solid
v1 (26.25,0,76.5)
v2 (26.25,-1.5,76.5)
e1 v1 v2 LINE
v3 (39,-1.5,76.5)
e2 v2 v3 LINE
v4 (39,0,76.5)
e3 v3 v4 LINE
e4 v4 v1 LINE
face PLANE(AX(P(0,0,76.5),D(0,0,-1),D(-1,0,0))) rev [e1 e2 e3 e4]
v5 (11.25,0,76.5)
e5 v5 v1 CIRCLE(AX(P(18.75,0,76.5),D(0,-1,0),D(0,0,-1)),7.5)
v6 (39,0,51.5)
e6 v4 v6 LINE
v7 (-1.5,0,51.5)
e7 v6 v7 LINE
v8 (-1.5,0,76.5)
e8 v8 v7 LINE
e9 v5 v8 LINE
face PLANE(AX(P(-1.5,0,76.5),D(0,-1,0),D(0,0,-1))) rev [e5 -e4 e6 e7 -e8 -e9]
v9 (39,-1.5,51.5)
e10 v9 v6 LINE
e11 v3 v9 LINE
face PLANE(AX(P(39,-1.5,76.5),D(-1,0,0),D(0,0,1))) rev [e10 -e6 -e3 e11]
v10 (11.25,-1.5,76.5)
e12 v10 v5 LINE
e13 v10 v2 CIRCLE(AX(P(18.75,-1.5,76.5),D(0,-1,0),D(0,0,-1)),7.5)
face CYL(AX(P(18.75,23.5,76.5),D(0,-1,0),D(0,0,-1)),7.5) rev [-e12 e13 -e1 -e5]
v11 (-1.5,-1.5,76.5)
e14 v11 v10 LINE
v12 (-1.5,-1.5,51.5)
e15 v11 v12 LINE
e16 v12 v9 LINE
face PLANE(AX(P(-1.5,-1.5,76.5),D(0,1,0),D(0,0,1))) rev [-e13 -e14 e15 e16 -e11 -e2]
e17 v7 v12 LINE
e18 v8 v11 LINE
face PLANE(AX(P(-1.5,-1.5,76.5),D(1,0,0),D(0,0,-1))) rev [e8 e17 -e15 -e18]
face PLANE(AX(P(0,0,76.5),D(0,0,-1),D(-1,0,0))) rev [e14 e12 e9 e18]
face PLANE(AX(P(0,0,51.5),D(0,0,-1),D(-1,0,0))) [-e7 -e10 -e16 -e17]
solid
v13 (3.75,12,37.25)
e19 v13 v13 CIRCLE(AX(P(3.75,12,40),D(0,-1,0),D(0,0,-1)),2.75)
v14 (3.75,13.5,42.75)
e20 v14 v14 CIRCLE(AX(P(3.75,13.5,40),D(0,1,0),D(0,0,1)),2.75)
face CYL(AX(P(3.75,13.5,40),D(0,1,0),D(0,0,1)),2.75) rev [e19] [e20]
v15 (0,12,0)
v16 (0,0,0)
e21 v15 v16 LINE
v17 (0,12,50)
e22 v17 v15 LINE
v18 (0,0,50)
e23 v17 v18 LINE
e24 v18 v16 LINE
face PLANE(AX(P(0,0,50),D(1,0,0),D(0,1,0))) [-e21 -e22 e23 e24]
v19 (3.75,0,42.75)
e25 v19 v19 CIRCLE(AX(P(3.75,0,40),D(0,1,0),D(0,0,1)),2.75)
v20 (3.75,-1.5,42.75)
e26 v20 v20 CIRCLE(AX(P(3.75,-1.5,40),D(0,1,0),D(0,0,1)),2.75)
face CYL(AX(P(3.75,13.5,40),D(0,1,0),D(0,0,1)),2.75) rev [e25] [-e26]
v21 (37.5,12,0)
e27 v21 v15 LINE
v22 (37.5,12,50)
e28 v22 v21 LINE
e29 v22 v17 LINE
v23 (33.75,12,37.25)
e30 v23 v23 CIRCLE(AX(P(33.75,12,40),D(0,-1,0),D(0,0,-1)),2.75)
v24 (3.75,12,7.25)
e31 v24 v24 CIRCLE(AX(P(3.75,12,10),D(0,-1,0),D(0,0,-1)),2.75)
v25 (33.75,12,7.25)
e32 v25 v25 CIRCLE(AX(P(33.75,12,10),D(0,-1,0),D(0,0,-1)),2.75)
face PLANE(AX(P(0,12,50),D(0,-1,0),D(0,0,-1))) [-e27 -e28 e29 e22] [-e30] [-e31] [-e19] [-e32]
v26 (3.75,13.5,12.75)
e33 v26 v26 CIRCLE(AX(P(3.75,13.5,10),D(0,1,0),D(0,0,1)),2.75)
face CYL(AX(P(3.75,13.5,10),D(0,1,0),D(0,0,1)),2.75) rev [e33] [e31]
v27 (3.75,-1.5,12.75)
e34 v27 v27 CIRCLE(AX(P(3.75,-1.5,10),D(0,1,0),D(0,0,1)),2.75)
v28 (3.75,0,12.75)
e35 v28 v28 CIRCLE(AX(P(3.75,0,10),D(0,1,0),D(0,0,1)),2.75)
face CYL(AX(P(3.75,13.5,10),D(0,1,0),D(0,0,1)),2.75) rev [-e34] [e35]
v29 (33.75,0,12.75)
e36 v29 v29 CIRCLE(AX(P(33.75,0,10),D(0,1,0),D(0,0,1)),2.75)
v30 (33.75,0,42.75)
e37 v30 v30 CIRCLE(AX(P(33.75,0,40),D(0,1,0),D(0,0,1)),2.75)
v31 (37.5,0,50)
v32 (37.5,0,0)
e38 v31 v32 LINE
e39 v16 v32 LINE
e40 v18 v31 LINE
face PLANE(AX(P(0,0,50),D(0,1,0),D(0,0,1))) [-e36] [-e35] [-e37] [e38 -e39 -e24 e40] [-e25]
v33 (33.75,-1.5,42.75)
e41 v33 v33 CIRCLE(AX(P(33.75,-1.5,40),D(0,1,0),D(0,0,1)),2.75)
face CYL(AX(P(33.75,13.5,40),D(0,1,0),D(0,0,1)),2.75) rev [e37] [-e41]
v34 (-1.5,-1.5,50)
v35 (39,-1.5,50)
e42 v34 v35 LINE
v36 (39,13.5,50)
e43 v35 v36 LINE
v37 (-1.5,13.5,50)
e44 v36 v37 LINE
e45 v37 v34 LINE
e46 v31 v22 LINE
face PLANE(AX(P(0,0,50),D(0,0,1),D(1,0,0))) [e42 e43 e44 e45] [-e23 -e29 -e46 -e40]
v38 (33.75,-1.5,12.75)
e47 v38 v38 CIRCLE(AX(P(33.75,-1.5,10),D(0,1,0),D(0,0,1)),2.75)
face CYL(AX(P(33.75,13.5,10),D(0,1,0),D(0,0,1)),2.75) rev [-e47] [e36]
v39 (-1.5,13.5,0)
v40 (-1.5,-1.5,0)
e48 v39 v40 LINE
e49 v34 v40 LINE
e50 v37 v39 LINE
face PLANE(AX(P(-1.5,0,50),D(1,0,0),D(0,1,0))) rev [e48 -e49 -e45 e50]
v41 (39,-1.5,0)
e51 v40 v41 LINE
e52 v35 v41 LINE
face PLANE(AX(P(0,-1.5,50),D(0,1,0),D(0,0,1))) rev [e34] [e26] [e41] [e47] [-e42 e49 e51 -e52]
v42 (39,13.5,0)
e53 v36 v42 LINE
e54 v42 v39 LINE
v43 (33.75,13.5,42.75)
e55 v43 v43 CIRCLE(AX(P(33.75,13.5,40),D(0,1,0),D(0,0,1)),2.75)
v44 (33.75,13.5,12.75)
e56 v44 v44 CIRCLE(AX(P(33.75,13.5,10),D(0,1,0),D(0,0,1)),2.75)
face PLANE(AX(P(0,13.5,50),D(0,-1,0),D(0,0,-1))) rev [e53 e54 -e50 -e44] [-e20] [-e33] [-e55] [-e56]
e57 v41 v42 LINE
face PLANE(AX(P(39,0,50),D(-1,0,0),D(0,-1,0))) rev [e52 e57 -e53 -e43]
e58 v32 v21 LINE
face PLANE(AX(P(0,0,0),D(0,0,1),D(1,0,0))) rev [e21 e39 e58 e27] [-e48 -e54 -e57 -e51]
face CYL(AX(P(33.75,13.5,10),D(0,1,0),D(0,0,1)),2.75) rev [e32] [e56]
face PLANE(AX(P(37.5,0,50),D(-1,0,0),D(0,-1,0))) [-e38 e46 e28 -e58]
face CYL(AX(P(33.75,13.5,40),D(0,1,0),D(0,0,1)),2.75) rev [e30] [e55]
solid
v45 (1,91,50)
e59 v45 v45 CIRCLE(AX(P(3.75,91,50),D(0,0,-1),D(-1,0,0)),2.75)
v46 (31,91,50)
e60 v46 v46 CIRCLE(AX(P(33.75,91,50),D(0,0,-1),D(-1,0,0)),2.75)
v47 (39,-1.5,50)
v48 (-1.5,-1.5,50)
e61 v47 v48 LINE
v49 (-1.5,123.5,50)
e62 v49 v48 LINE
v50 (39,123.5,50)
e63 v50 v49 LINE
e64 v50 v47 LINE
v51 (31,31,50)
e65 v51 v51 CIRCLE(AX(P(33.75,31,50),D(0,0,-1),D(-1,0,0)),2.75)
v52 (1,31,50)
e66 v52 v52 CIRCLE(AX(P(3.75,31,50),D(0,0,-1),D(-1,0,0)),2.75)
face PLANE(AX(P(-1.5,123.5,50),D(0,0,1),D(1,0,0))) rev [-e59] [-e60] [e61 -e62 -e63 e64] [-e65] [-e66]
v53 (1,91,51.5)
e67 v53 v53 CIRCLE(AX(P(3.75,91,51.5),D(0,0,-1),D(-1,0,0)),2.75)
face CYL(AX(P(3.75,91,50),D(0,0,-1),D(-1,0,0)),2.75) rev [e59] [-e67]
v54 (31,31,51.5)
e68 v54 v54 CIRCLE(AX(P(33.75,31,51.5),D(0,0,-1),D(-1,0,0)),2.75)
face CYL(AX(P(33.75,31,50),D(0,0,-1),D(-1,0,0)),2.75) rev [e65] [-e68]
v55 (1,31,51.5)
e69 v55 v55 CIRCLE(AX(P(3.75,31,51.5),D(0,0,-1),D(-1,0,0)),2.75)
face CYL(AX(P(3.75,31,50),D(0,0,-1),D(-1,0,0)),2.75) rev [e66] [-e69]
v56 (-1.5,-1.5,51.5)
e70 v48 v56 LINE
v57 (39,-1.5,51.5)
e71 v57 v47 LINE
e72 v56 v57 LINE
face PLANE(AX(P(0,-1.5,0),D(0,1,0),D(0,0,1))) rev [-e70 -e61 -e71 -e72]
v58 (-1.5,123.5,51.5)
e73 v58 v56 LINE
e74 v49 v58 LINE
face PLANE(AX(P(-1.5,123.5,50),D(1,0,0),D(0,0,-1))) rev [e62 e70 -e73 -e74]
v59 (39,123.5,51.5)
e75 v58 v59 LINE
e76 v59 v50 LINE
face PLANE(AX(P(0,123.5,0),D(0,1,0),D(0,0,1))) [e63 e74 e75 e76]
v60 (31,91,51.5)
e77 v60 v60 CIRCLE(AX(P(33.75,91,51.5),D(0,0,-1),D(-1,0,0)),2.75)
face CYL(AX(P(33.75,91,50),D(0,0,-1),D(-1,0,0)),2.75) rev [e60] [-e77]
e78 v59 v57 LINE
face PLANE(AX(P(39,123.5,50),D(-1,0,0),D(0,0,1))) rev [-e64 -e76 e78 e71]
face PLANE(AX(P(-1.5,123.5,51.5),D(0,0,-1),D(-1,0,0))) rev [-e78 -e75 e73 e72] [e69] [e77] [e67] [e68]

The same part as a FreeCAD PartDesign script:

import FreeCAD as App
import Part
import Sketcher

V = App.Vector
Q = App.Units.Quantity


def add_polygon(sketch, points):
    """Adds a closed chain of lines whose ends are joined by coincident constraints."""
    first, n = sketch.GeometryCount, len(points)
    for a, b in zip(points, points[1:] + points[:1]):
        sketch.addGeometry(Part.LineSegment(App.Vector(*a, 0), App.Vector(*b, 0)), False)
    for i in range(n):
        sketch.addConstraint(Sketcher.Constraint("Coincident", first + i, 2, first + (i + 1) % n, 1))

doc = App.newDocument("Part")
params = doc.addObject("Spreadsheet::Sheet", "Params")
for row, (alias, value) in enumerate([
    ("sketch1_height", "15 mm"),
    ("sketch1_height2", "12 mm"),
    ("sketch1_width", "40.5 mm"),
    ("sketch1_width2", "37.5 mm"),
    ("pad1_length", "50 mm"),
    ("sketch2_width", "15 mm"),
    ("sketch2_height", "2.75 mm"),
    ("groove_angle", "360 deg"),
    ("linearpattern_pitch", "42.426407 mm"),
    ("linearpattern2_pitch", "30 mm"),
    ("linearpattern3_pitch", "30 mm"),
    ("sketch3_width", "40.5 mm"),
    ("sketch3_height", "1.5 mm"),
    ("pad2_length", "125 mm"),
    ("sketch4_height", "26.5 mm"),
    ("sketch4_width", "2.75 mm"),
    ("groove2_angle", "360 deg"),
    ("linearpattern4_pitch", "67.082039 mm"),
    ("linearpattern5_pitch", "60 mm"),
    ("linearpattern6_pitch", "30 mm"),
    ("sketch5_width", "40.5 mm"),
    ("sketch5_height", "1.5 mm"),
    ("pad3_length", "25 mm"),
    ("sketch6_diameter", "15 mm"),
    ("pocket1_length", "25 mm"),
], start=1):
    params.set(f"A{row}", alias)
    params.set(f"B{row}", "=" + value)
    params.setAlias(f"B{row}", alias)

body = doc.addObject("PartDesign::Body", "Body")

sketch1 = doc.addObject("Sketcher::SketchObject", "Sketch")
body.addObject(sketch1)
sketch1.AttachmentSupport = (doc.XY_Plane, [""])
sketch1.MapMode = "FlatFace"
add_polygon(sketch1, [(-1.5, 13.5), (-1.5, -1.5), (39, -1.5), (39, 13.5)])
add_polygon(sketch1, [(37.5, 0), (0, 0), (0, 12), (37.5, 12)])
sketch1.addConstraint([
    Sketcher.Constraint("Vertical", 0),
    Sketcher.Constraint("Horizontal", 1),
    Sketcher.Constraint("Vertical", 2),
    Sketcher.Constraint("Horizontal", 3),
    Sketcher.Constraint("Horizontal", 4),
    Sketcher.Constraint("Vertical", 5),
    Sketcher.Constraint("Horizontal", 6),
    Sketcher.Constraint("Vertical", 7),
    Sketcher.Constraint("Coincident", 4, 2, -1, 1),
    Sketcher.Constraint("DistanceY", 0, 2, 0, 1, Q("15 mm")),
    Sketcher.Constraint("DistanceY", 5, 1, 5, 2, Q("12 mm")),
    Sketcher.Constraint("DistanceX", 1, 1, 1, 2, Q("40.5 mm")),
    Sketcher.Constraint("DistanceX", 4, 2, 4, 1, Q("37.5 mm")),
    Sketcher.Constraint("DistanceX", -1, 1, 1, 2, Q("39 mm")),
    Sketcher.Constraint("DistanceY", 0, 2, -1, 1, Q("1.5 mm")),
])
sketch1.setExpression("Constraints[17]", "Params.sketch1_height")
sketch1.setExpression("Constraints[18]", "Params.sketch1_height2")
sketch1.setExpression("Constraints[19]", "Params.sketch1_width")
sketch1.setExpression("Constraints[20]", "Params.sketch1_width2")
pad1 = doc.addObject("PartDesign::Pad", "Pad")
body.addObject(pad1)
pad1.Profile = sketch1
pad1.setExpression("Length", "Params.pad1_length")

sketch2 = doc.addObject("Sketcher::SketchObject", "Sketch001")
body.addObject(sketch2)
sketch2.AttachmentSupport = (doc.YZ_Plane, [""])
sketch2.MapMode = "FlatFace"
sketch2.AttachmentOffset = App.Placement(V(0, 0, 3.75), App.Rotation())
add_polygon(sketch2, [(-1.5, 10), (13.5, 10), (13.5, 12.75), (-1.5, 12.75)])
sketch2.addGeometry(Part.LineSegment(V(13.5, 10, 0), V(-1.5, 10, 0)), True)
sketch2.addConstraint([
    Sketcher.Constraint("Horizontal", 0),
    Sketcher.Constraint("Vertical", 1),
    Sketcher.Constraint("Horizontal", 2),
    Sketcher.Constraint("Vertical", 3),
    Sketcher.Constraint("Horizontal", 4),
    Sketcher.Constraint("Coincident", 4, 1, 0, 2),
    Sketcher.Constraint("Vertical", 2, 2, 4, 2),
    Sketcher.Constraint("DistanceX", 0, 1, 0, 2, Q("15 mm")),
    Sketcher.Constraint("DistanceY", -1, 1, 0, 2, Q("10 mm")),
    Sketcher.Constraint("DistanceY", 1, 1, 1, 2, Q("2.75 mm")),
    Sketcher.Constraint("DistanceX", -1, 1, 0, 2, Q("13.5 mm")),
])
sketch2.setExpression("Constraints[11]", "Params.sketch2_width")
sketch2.setExpression("Constraints[13]", "Params.sketch2_height")
groove = doc.addObject("PartDesign::Groove", "Groove")
body.addObject(groove)
groove.Profile = sketch2
groove.ReferenceAxis = (sketch2, ["Axis0"])
groove.setExpression("Angle", "Params.groove_angle")
doc.recompute()

datumline = doc.addObject("PartDesign::Line", "DatumLine")
body.addObject(datumline)
datumline.Placement = App.Placement(V(0, 0, 0), App.Rotation(V(0, 0, 1), V(0.707106781, 0, 0.707106781)))
linearpattern = doc.addObject("PartDesign::LinearPattern", "LinearPattern")
body.addObject(linearpattern)
linearpattern.Originals = [groove]
linearpattern.Direction = (datumline, [""])
linearpattern.Mode = "offset"
linearpattern.setExpression("Offset", "Params.linearpattern_pitch")
linearpattern.Occurrences = 2
body.Tip = linearpattern
doc.recompute()

linearpattern2 = doc.addObject("PartDesign::LinearPattern", "LinearPattern001")
body.addObject(linearpattern2)
linearpattern2.Originals = [groove]
linearpattern2.Direction = (doc.Z_Axis, [""])
linearpattern2.Mode = "offset"
linearpattern2.setExpression("Offset", "Params.linearpattern2_pitch")
linearpattern2.Occurrences = 2
body.Tip = linearpattern2
doc.recompute()

linearpattern3 = doc.addObject("PartDesign::LinearPattern", "LinearPattern002")
body.addObject(linearpattern3)
linearpattern3.Originals = [groove]
linearpattern3.Direction = (doc.X_Axis, [""])
linearpattern3.Mode = "offset"
linearpattern3.setExpression("Offset", "Params.linearpattern3_pitch")
linearpattern3.Occurrences = 2
body.Tip = linearpattern3
body2 = doc.addObject("PartDesign::Body", "Body001")

sketch3 = doc.addObject("Sketcher::SketchObject", "Sketch002")
body2.addObject(sketch3)
sketch3.AttachmentSupport = (doc.getObject("XZ_Plane001"), [""])
sketch3.MapMode = "FlatFace"
sketch3.AttachmentOffset = App.Placement(V(0, 0, 1.5), App.Rotation())
add_polygon(sketch3, [(-1.5, 50), (-1.5, 51.5), (39, 51.5), (39, 50)])
sketch3.addConstraint([
    Sketcher.Constraint("Vertical", 0),
    Sketcher.Constraint("Horizontal", 1),
    Sketcher.Constraint("Vertical", 2),
    Sketcher.Constraint("Horizontal", 3),
    Sketcher.Constraint("DistanceX", 1, 1, 1, 2, Q("40.5 mm")),
    Sketcher.Constraint("DistanceY", 0, 1, 0, 2, Q("1.5 mm")),
    Sketcher.Constraint("DistanceX", -1, 1, 1, 2, Q("39 mm")),
    Sketcher.Constraint("DistanceY", -1, 1, 2, 2, Q("50 mm")),
])
sketch3.setExpression("Constraints[8]", "Params.sketch3_width")
sketch3.setExpression("Constraints[9]", "Params.sketch3_height")
pad2 = doc.addObject("PartDesign::Pad", "Pad001")
body2.addObject(pad2)
pad2.Profile = sketch3
pad2.setExpression("Length", "Params.pad2_length")
pad2.Reversed = True

sketch4 = doc.addObject("Sketcher::SketchObject", "Sketch003")
body2.addObject(sketch4)
sketch4.AttachmentSupport = (doc.getObject("YZ_Plane001"), [""])
sketch4.MapMode = "FlatFace"
sketch4.AttachmentOffset = App.Placement(V(0, 0, 33.75), App.Rotation())
add_polygon(sketch4, [(91, 76.5), (91, 50), (93.75, 50), (93.75, 76.5)])
sketch4.addGeometry(Part.LineSegment(V(91, 50, 0), V(91, 76.5, 0)), True)
sketch4.addConstraint([
    Sketcher.Constraint("Vertical", 0),
    Sketcher.Constraint("Horizontal", 1),
    Sketcher.Constraint("Vertical", 2),
    Sketcher.Constraint("Horizontal", 3),
    Sketcher.Constraint("Vertical", 4),
    Sketcher.Constraint("Coincident", 4, 1, 0, 2),
    Sketcher.Constraint("Horizontal", 2, 2, 4, 2),
    Sketcher.Constraint("DistanceY", 0, 2, 0, 1, Q("26.5 mm")),
    Sketcher.Constraint("DistanceX", -1, 1, 0, 2, Q("91 mm")),
    Sketcher.Constraint("DistanceY", -1, 1, 0, 2, Q("50 mm")),
    Sketcher.Constraint("DistanceX", 1, 1, 1, 2, Q("2.75 mm")),
])
sketch4.setExpression("Constraints[11]", "Params.sketch4_height")
sketch4.setExpression("Constraints[14]", "Params.sketch4_width")
groove2 = doc.addObject("PartDesign::Groove", "Groove001")
body2.addObject(groove2)
groove2.Profile = sketch4
groove2.ReferenceAxis = (sketch4, ["Axis0"])
groove2.setExpression("Angle", "Params.groove2_angle")
doc.recompute()

datumline2 = doc.addObject("PartDesign::Line", "DatumLine001")
body2.addObject(datumline2)
datumline2.Placement = App.Placement(V(0, 0, 0), App.Rotation(V(0, 0, 1), V(-0.447213595, -0.894427191, 0)))
linearpattern4 = doc.addObject("PartDesign::LinearPattern", "LinearPattern003")
body2.addObject(linearpattern4)
linearpattern4.Originals = [groove2]
linearpattern4.Direction = (datumline2, [""])
linearpattern4.Mode = "offset"
linearpattern4.setExpression("Offset", "Params.linearpattern4_pitch")
linearpattern4.Occurrences = 2
body2.Tip = linearpattern4
doc.recompute()

linearpattern5 = doc.addObject("PartDesign::LinearPattern", "LinearPattern004")
body2.addObject(linearpattern5)
linearpattern5.Originals = [groove2]
linearpattern5.Direction = (doc.getObject("Y_Axis001"), [""])
linearpattern5.Mode = "offset"
linearpattern5.setExpression("Offset", "Params.linearpattern5_pitch")
linearpattern5.Occurrences = 2
linearpattern5.Reversed = True
body2.Tip = linearpattern5
doc.recompute()

linearpattern6 = doc.addObject("PartDesign::LinearPattern", "LinearPattern005")
body2.addObject(linearpattern6)
linearpattern6.Originals = [groove2]
linearpattern6.Direction = (doc.getObject("X_Axis001"), [""])
linearpattern6.Mode = "offset"
linearpattern6.setExpression("Offset", "Params.linearpattern6_pitch")
linearpattern6.Occurrences = 2
linearpattern6.Reversed = True
body2.Tip = linearpattern6
body3 = doc.addObject("PartDesign::Body", "Body002")

sketch5 = doc.addObject("Sketcher::SketchObject", "Sketch004")
body3.addObject(sketch5)
sketch5.AttachmentSupport = (doc.getObject("XY_Plane002"), [""])
sketch5.MapMode = "FlatFace"
sketch5.AttachmentOffset = App.Placement(V(0, 0, 51.5), App.Rotation())
add_polygon(sketch5, [(-1.5, 0), (-1.5, -1.5), (39, -1.5), (39, 0)])
sketch5.addConstraint([
    Sketcher.Constraint("Vertical", 0),
    Sketcher.Constraint("Horizontal", 1),
    Sketcher.Constraint("Vertical", 2),
    Sketcher.Constraint("Horizontal", 3),
    Sketcher.Constraint("PointOnObject", 2, 2, -1),
    Sketcher.Constraint("DistanceX", 1, 1, 1, 2, Q("40.5 mm")),
    Sketcher.Constraint("DistanceY", 0, 2, 0, 1, Q("1.5 mm")),
    Sketcher.Constraint("DistanceX", -1, 1, 1, 2, Q("39 mm")),
])
sketch5.setExpression("Constraints[9]", "Params.sketch5_width")
sketch5.setExpression("Constraints[10]", "Params.sketch5_height")
pad3 = doc.addObject("PartDesign::Pad", "Pad002")
body3.addObject(pad3)
pad3.Profile = sketch5
pad3.setExpression("Length", "Params.pad3_length")

sketch6 = doc.addObject("Sketcher::SketchObject", "Sketch005")
body3.addObject(sketch6)
sketch6.AttachmentSupport = (doc.getObject("XZ_Plane002"), [""])
sketch6.MapMode = "FlatFace"
sketch6.AttachmentOffset = App.Placement(V(0, 0, 1.5), App.Rotation())
sketch6.addGeometry(Part.Circle(V(18.75, 76.5, 0), V(0, 0, 1), 7.5), False)
sketch6.addConstraint([
    Sketcher.Constraint("Diameter", 0, Q("15 mm")),
    Sketcher.Constraint("DistanceY", -1, 1, 0, 3, Q("76.5 mm")),
    Sketcher.Constraint("DistanceX", -1, 1, 0, 3, Q("18.75 mm")),
])
sketch6.setExpression("Constraints[0]", "Params.sketch6_diameter")
pocket1 = doc.addObject("PartDesign::Pocket", "Pocket")
body3.addObject(pocket1)
pocket1.Profile = sketch6
pocket1.setExpression("Length", "Params.pocket1_length")

doc.recompute()
